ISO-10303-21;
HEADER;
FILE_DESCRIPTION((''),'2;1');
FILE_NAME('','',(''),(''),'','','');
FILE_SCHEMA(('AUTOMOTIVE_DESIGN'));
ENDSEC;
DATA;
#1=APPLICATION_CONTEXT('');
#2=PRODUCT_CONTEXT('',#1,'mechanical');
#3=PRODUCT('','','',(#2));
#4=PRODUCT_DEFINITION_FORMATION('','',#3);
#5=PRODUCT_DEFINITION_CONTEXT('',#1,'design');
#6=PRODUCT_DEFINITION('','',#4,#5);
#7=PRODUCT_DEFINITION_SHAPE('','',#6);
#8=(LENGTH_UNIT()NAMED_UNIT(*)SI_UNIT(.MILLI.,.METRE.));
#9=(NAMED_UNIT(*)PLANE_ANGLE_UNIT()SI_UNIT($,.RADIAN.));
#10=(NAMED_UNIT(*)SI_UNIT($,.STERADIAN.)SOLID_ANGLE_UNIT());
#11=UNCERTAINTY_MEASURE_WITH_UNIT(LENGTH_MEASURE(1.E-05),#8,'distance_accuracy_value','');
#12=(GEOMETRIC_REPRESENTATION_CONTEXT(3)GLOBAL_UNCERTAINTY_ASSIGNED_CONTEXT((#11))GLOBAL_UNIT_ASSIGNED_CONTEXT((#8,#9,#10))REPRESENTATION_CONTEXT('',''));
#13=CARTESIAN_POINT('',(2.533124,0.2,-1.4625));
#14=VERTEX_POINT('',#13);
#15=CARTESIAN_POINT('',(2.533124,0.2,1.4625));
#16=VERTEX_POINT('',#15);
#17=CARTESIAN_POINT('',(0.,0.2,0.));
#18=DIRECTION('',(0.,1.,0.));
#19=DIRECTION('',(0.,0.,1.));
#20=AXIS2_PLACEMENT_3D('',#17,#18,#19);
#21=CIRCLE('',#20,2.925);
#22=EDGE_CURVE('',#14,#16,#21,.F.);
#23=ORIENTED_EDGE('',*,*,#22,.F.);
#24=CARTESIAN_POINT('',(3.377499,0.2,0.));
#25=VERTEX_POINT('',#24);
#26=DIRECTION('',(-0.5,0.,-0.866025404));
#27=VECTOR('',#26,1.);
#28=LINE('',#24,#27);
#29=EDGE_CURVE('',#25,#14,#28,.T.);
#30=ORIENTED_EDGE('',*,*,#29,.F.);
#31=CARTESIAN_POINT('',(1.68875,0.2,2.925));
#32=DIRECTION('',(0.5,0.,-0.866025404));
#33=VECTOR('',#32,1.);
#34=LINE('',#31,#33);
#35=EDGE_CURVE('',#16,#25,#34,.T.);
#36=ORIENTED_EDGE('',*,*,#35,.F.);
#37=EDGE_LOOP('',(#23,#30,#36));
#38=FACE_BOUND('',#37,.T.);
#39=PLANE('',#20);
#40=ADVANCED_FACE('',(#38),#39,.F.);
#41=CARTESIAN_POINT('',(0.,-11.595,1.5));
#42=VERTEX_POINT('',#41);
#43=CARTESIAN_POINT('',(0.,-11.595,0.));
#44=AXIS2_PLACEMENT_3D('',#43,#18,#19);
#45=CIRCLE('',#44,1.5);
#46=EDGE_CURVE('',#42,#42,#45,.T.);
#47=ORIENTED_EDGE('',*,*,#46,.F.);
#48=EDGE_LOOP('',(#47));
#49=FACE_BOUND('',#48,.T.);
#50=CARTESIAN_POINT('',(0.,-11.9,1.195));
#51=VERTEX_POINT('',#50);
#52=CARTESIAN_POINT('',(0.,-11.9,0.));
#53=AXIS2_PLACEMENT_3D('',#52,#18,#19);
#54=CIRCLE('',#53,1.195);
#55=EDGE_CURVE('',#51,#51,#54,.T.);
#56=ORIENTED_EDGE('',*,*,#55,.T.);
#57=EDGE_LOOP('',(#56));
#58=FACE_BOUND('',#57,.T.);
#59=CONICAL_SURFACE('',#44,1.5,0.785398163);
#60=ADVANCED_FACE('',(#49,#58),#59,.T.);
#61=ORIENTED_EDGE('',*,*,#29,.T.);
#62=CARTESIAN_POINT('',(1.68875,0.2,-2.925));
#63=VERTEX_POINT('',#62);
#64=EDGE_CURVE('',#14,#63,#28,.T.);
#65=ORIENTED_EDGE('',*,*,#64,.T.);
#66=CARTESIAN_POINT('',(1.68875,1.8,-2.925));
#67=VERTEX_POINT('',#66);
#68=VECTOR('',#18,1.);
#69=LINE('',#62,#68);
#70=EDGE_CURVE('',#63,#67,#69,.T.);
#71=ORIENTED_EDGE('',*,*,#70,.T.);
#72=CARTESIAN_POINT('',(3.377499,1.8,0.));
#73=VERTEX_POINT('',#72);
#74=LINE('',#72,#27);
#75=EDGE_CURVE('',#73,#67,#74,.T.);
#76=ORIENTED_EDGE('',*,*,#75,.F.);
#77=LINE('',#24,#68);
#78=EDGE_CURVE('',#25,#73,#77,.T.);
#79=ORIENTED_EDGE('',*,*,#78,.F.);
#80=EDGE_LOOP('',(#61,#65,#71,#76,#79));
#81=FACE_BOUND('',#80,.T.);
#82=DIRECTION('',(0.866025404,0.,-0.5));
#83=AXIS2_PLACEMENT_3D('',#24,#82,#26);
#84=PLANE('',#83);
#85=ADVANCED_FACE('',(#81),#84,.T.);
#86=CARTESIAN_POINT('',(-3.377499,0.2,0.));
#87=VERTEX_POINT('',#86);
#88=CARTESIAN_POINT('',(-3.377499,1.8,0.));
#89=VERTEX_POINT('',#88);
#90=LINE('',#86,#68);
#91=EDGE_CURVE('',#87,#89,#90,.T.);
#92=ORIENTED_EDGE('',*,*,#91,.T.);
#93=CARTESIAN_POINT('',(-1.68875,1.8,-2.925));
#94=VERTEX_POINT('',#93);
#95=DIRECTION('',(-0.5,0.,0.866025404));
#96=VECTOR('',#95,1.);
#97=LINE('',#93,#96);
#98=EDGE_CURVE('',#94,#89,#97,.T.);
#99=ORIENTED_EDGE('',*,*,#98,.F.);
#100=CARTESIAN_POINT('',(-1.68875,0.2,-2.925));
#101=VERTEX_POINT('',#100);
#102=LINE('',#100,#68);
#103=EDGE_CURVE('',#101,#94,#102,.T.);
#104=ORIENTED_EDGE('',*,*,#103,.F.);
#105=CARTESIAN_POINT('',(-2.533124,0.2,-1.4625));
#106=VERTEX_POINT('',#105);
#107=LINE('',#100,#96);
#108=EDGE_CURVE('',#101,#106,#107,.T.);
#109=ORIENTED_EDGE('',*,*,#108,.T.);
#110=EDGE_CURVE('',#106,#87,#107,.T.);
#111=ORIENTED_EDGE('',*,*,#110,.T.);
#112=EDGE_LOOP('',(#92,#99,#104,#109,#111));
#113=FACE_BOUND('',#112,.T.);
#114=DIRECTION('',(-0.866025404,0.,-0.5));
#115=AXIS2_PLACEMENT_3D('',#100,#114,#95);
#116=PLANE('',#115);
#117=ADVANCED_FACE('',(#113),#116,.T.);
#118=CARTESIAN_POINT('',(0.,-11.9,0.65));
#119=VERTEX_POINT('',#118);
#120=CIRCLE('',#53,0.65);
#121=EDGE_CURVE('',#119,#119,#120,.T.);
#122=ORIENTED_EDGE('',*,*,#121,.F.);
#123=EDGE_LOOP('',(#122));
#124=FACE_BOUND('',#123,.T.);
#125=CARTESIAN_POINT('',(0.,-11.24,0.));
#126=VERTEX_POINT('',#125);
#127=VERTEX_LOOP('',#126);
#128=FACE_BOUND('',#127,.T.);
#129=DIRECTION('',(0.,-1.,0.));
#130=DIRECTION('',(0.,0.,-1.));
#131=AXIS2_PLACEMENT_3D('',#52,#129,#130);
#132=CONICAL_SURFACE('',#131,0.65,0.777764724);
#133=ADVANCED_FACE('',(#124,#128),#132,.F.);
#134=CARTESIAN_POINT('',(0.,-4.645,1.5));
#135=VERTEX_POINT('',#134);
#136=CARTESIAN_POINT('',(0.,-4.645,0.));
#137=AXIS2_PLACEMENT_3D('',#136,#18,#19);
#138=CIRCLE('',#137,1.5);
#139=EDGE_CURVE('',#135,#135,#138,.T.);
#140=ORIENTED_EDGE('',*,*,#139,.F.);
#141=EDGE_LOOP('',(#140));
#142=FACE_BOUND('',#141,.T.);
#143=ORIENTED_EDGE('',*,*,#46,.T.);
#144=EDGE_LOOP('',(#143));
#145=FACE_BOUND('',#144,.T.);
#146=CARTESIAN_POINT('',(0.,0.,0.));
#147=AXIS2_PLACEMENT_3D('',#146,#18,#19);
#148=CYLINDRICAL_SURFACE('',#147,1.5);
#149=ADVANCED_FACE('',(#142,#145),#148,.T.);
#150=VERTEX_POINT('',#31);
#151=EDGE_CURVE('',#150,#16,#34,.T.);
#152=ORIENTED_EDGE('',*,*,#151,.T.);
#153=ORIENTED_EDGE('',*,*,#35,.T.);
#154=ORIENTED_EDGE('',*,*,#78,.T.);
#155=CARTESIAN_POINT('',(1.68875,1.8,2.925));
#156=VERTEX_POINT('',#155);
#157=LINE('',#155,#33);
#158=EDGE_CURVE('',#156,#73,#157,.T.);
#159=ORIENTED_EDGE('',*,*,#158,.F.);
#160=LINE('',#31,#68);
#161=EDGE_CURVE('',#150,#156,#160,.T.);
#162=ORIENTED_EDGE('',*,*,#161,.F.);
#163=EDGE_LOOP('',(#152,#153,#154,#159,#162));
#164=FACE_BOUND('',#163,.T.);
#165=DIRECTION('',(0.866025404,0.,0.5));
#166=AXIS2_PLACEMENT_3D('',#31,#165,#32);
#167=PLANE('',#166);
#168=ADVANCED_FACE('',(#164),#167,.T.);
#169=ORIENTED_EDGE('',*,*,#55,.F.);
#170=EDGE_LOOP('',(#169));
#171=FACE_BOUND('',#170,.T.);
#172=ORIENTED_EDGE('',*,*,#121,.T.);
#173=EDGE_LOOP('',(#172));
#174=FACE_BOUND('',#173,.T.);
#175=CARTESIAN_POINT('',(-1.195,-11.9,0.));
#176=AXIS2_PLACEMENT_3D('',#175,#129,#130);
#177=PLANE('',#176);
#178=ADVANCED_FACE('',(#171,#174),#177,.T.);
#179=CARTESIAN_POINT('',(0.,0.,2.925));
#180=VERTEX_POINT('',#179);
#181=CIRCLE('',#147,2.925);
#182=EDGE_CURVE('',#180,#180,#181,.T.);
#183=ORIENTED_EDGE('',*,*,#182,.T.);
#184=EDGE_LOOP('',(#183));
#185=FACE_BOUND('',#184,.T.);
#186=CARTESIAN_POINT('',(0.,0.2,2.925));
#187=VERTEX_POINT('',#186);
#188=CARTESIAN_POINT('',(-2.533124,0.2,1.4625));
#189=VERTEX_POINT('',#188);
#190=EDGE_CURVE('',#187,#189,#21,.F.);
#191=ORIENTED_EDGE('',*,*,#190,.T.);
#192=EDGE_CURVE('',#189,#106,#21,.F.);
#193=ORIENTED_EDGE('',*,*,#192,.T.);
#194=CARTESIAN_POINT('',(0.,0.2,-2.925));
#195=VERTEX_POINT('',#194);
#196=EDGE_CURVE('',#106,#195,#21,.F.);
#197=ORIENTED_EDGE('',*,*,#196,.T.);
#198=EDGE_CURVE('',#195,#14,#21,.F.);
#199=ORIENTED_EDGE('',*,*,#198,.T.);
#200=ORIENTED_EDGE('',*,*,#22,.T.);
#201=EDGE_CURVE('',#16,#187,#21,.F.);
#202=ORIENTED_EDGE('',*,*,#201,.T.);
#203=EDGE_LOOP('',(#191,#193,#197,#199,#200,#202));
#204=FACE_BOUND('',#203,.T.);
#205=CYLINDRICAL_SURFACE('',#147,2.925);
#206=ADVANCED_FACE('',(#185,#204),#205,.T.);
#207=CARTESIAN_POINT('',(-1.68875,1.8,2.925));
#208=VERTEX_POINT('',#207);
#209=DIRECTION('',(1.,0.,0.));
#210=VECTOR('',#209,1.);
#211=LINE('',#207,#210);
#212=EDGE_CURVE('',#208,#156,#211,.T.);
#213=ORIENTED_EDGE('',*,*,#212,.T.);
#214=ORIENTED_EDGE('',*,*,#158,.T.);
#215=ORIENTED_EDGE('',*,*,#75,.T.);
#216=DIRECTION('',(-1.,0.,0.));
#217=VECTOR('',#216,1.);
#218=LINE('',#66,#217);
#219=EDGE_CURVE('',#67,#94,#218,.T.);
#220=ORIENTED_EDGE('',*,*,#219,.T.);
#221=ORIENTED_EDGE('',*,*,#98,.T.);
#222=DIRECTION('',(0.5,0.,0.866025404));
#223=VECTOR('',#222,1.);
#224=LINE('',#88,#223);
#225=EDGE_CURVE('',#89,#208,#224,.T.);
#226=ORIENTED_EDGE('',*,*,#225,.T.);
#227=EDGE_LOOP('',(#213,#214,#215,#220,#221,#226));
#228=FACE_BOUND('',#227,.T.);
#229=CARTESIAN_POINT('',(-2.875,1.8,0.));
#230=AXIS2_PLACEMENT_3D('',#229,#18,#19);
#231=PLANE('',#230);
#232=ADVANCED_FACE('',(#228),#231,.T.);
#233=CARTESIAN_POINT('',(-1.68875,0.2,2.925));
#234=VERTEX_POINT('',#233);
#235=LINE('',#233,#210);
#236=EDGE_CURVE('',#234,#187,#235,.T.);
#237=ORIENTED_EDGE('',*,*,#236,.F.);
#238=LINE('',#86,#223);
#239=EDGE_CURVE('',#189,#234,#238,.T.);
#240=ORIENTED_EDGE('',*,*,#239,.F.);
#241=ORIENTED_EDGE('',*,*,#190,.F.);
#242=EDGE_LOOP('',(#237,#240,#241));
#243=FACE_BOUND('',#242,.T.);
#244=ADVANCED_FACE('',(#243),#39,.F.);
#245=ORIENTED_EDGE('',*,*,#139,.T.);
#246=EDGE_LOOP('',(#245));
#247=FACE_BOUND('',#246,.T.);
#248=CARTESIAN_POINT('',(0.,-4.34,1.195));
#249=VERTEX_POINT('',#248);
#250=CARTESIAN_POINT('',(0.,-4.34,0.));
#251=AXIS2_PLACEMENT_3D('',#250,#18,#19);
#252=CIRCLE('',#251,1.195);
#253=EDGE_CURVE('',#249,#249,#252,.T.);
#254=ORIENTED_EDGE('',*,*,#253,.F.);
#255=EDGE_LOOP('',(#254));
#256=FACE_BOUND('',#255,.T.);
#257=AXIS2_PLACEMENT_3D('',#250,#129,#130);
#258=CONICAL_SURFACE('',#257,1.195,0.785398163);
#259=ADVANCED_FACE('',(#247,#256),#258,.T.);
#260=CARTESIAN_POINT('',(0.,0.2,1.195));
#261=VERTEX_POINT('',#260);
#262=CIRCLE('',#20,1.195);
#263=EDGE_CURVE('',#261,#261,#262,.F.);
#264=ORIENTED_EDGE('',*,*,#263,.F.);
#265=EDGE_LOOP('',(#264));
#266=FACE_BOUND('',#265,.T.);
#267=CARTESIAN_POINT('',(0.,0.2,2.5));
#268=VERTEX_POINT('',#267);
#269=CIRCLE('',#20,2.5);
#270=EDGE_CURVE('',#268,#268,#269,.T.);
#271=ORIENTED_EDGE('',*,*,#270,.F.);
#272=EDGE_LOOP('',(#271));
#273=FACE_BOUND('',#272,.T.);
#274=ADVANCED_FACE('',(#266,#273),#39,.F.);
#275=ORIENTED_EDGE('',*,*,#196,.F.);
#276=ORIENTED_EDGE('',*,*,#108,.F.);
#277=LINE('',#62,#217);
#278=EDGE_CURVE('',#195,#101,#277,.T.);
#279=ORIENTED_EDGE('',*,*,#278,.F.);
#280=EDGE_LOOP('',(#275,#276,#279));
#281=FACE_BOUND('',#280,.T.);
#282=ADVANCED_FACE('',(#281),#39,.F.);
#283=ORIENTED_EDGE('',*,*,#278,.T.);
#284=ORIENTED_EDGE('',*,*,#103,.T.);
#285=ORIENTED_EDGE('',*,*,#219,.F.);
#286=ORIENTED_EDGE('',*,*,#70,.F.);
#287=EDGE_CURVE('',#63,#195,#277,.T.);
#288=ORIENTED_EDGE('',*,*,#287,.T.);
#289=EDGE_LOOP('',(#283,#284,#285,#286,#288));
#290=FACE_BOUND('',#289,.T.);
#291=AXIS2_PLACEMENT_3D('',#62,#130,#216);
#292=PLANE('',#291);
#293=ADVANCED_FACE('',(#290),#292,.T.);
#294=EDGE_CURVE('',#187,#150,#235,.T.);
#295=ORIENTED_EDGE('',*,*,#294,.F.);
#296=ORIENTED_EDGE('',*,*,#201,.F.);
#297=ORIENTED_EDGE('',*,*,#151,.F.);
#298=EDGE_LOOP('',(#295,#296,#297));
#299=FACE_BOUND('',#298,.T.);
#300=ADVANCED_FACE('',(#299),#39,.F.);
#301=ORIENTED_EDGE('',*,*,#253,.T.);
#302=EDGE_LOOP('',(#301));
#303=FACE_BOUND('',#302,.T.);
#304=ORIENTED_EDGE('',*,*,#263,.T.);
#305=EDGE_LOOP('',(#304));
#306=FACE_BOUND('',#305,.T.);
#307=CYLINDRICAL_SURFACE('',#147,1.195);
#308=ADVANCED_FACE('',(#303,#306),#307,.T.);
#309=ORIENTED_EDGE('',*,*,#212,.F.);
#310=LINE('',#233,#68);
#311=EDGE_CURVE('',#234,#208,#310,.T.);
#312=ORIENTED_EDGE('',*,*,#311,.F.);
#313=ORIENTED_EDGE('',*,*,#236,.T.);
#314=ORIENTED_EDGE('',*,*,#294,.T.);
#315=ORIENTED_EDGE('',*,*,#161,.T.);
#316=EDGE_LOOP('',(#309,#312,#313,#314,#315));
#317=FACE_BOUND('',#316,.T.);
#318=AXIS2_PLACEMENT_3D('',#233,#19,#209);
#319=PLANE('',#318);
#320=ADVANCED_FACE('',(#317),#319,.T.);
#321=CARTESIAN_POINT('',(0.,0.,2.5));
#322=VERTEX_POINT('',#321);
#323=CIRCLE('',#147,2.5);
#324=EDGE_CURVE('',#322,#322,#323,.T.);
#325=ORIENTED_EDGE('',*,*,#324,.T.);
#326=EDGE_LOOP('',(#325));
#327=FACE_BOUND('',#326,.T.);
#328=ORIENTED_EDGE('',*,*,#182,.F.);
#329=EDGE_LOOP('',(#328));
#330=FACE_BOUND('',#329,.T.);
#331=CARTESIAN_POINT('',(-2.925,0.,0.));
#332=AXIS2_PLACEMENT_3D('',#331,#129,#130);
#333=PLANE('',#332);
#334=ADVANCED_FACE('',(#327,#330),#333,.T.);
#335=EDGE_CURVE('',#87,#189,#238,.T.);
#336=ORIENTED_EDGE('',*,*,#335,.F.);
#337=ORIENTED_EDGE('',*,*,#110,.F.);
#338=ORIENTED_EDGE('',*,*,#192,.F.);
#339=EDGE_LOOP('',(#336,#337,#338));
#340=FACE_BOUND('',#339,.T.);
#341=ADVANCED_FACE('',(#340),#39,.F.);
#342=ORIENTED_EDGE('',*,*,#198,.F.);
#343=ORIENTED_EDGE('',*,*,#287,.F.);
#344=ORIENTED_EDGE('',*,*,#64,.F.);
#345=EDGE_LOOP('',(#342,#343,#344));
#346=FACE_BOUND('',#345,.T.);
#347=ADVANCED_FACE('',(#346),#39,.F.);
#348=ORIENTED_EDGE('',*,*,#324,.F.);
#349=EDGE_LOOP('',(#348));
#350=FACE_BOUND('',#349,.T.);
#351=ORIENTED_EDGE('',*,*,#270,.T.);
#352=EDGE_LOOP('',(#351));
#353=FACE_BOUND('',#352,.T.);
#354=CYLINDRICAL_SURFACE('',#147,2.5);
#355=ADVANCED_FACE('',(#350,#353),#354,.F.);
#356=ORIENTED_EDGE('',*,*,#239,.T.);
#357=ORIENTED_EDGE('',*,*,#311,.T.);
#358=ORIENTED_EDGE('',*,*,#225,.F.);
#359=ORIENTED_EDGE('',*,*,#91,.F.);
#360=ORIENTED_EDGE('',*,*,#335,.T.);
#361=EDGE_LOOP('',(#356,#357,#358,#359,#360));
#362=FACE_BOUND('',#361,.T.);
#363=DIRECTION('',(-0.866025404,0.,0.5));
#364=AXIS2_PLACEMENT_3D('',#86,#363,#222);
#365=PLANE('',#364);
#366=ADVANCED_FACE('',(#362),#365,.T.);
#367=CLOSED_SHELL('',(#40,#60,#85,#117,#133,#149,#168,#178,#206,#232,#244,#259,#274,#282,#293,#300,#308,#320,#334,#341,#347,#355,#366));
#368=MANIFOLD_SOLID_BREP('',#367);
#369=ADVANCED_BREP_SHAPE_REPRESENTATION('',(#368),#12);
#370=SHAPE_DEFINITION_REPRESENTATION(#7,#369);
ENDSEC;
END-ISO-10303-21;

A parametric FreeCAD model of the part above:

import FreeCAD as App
import Part
import Sketcher
Q = App.Units.Quantity


def add_polygon(sketch, points):
    """Adds a closed chain of lines whose ends are joined by coincident constraints."""
    first, n = sketch.GeometryCount, len(points)
    for a, b in zip(points, points[1:] + points[:1]):
        sketch.addGeometry(Part.LineSegment(App.Vector(*a, 0), App.Vector(*b, 0)), False)
    for i in range(n):
        sketch.addConstraint(Sketcher.Constraint("Coincident", first + i, 2, first + (i + 1) % n, 1))

doc = App.newDocument("Part")
params = doc.addObject("Spreadsheet::Sheet", "Params")
for row, (alias, value) in enumerate([
    ("sketch1_height", "1 mm"),
    ("sketch1_height2", "1.75 mm"),
    ("sketch1_height3", "5.34 mm"),
    ("sketch1_height4", "6.95 mm"),
    ("sketch1_height5", "13.04 mm"),
    ("revolution_angle", "360 deg"),
    ("pad1_length", "1.6 mm"),
], start=1):
    params.set(f"A{row}", alias)
    params.set(f"B{row}", "=" + value)
    params.setAlias(f"B{row}", alias)

body = doc.addObject("PartDesign::Body", "Body")

# Sketch on XY plane
sketch1 = body.newObject("Sketcher::SketchObject", "Sketch")
sketch1.AttachmentSupport = (doc.getObject("XY_Plane"), [""])
sketch1.MapMode = "FlatFace"
add_polygon(sketch1, [(0, 1.8), (-2.88, 1.8), (-2.92, 1.75), (-2.92, 0), (-2.5, 0), (-2.5, 1), (-1.2, 1), (-1.2, -4.34), (-1.5, -4.64), (-1.5, -11.6), (-1.2, -11.9), (-0.65, -11.9), (0, -11.24)])  # lines 0-12
sketch1.addConstraint([
    Sketcher.Constraint("Horizontal", 0),
    Sketcher.Constraint("Vertical", 2),
    Sketcher.Constraint("Horizontal", 3),
    Sketcher.Constraint("Vertical", 4),
    Sketcher.Constraint("Horizontal", 5),
    Sketcher.Constraint("Vertical", 6),
    Sketcher.Constraint("Vertical", 8),
    Sketcher.Constraint("Horizontal", 10),
    Sketcher.Constraint("Vertical", 12),
    Sketcher.Constraint("PointOnObject", 2, 2, -1),
    Sketcher.Constraint("PointOnObject", 11, 2, -2),
    Sketcher.Constraint("Parallel", 1, 7),
    Sketcher.Constraint("Perpendicular", 7, 9),
    Sketcher.Constraint("Vertical", 6, 2, 9, 2),
    Sketcher.Constraint("Equal", 7, 9),
    Sketcher.Constraint("DistanceY", 4, 1, 4, 2, Q("1 mm")),
    Sketcher.Constraint("DistanceX", 3, 2, 7, 2, Q("1 mm")),
    Sketcher.Constraint("DistanceY", 2, 2, 2, 1, Q("1.75 mm")),
    Sketcher.Constraint("DistanceY", 6, 2, 6, 1, Q("5.34 mm")),
    Sketcher.Constraint("DistanceY", 8, 2, 8, 1, Q("6.95 mm")),
    Sketcher.Constraint("DistanceY", 12, 1, 12, 2, Q("13.04 mm")),
    Sketcher.Constraint("DistanceY", -1, 1, 0, 2, Q("1.8 mm")),
    Sketcher.Constraint("DistanceX", 3, 2, -1, 1, Q("2.5 mm")),
    Sketcher.Constraint("DistanceY", 9, 2, -1, 1, Q("11.9 mm")),
    Sketcher.Constraint("DistanceX", 0, 2, 0, 1, Q("2.875 mm")),
    Sketcher.Constraint("DistanceX", 10, 1, 10, 2, Q("0.545 mm")),
])
sketch1.setExpression("Constraints[28]", "Params.sketch1_height")
sketch1.setExpression("Constraints[30]", "Params.sketch1_height2")
sketch1.setExpression("Constraints[31]", "Params.sketch1_height3")
sketch1.setExpression("Constraints[32]", "Params.sketch1_height4")
sketch1.setExpression("Constraints[33]", "Params.sketch1_height5")
revolution = body.newObject("PartDesign::Revolution", "Revolution")
revolution.Profile = sketch1
revolution.ReferenceAxis = (sketch1, ["V_Axis"])
revolution.setExpression("Angle", "Params.revolution_angle")

# Sketch on XZ plane
sketch2 = body.newObject("Sketcher::SketchObject", "Sketch001")
sketch2.AttachmentSupport = (doc.getObject("XZ_Plane"), [""])
sketch2.MapMode = "FlatFace"
sketch2.AttachmentOffset = App.Placement(App.Vector(0, 0, -1.8), App.Rotation())
add_polygon(sketch2, [(1.7, -2.9), (-1.7, -2.9), (-3.4, 0), (-1.7, 2.9), (1.7, 2.9), (3.4, 0)])  # lines 0-5
sketch2.addConstraint([
    Sketcher.Constraint("Horizontal", 0),
    Sketcher.Constraint("Horizontal", 3),
    Sketcher.Constraint("Symmetric", 0, 2, 3, 2, -1, 1),
    Sketcher.Constraint("Symmetric", 1, 2, 4, 2, -1, 1),
    Sketcher.Constraint("PointOnObject", 1, 2, -1),
    Sketcher.Constraint("Parallel", 2, 5),
    Sketcher.Constraint("Vertical", 0, 2, 2, 2),
    Sketcher.Constraint("Angle", 1, Q("120 deg")),
    Sketcher.Constraint("DistanceY", 0, 2, 2, 2, Q("5.85 mm")),
    Sketcher.Constraint("DistanceX", 0, 2, 0, 1, Q("3.377499 mm")),
])
pad1 = body.newObject("PartDesign::Pad", "Pad")
pad1.Profile = sketch2
pad1.setExpression("Length", "Params.pad1_length")

doc.recompute()
